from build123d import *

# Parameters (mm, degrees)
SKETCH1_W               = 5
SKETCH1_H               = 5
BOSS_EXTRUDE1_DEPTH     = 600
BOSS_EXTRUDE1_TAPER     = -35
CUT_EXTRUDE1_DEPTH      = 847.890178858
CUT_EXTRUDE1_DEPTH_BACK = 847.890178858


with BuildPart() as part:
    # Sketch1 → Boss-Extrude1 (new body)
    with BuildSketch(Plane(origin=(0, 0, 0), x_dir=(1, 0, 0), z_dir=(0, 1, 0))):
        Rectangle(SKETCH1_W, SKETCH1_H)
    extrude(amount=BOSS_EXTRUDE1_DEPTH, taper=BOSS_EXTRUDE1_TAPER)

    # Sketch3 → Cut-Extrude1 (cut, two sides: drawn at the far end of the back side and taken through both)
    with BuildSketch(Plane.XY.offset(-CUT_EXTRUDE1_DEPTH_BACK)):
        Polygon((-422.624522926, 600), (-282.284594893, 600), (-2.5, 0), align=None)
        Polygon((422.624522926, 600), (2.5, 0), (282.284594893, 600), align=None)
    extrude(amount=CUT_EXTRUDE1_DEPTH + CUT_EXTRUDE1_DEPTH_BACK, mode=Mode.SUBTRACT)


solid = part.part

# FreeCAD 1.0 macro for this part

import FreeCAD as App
import Part
import Sketcher
Q = App.Units.Quantity


def add_polygon(sketch, points):
    """Adds a closed chain of lines whose ends are joined by coincident constraints."""
    first, n = sketch.GeometryCount, len(points)
    for a, b in zip(points, points[1:] + points[:1]):
        sketch.addGeometry(Part.LineSegment(App.Vector(*a, 0), App.Vector(*b, 0)), False)
    for i in range(n):
        sketch.addConstraint(Sketcher.Constraint("Coincident", first + i, 2, first + (i + 1) % n, 1))

doc = App.newDocument("Part")
params = doc.addObject("Spreadsheet::Sheet", "Params")
for row, (alias, value) in enumerate([
    ("sketch1_width", "5 mm"),
    ("pad1_length", "600 mm"),
    ("pad1_taper", "35 deg"),
], start=1):
    params.set(f"A{row}", alias)
    params.set(f"B{row}", "=" + value)
    params.setAlias(f"B{row}", alias)

body = doc.addObject("PartDesign::Body", "Body")

# Sketch on XZ plane
sketch1 = body.newObject("Sketcher::SketchObject", "Sketch")
sketch1.AttachmentSupport = (doc.getObject("XZ_Plane"), [""])
sketch1.MapMode = "FlatFace"
add_polygon(sketch1, [(-2, -2), (-2, 2), (2, 2), (2, -2)])  # lines 0-3
sketch1.addConstraint(Sketcher.Constraint("Vertical", 0))
sketch1.addConstraint(Sketcher.Constraint("Horizontal", 1))
sketch1.addConstraint(Sketcher.Constraint("Vertical", 2))
sketch1.addConstraint(Sketcher.Constraint("Horizontal", 3))
sketch1.addConstraint(Sketcher.Constraint("Symmetric", 0, 2, 2, 2, -1, 1))
sketch1.addConstraint(Sketcher.Constraint("Equal", 3, 0))
sketch1.addConstraint(Sketcher.Constraint("DistanceX", 1, 1, 1, 2, 5.0))
sketch1.setExpression("Constraints[10]", "Params.sketch1_width")
pad1 = body.newObject("PartDesign::Pad", "Pad")
pad1.Profile = sketch1
pad1.setExpression("Length", "Params.pad1_length")
pad1.Reversed = True
pad1.setExpression("TaperAngle", "Params.pad1_taper")

# Sketch on XY plane
sketch2 = body.newObject("Sketcher::SketchObject", "Sketch001")
sketch2.AttachmentSupport = (doc.getObject("XY_Plane"), [""])
sketch2.MapMode = "FlatFace"
add_polygon(sketch2, [(-282, 600), (-423, 600), (-2, 0)])  # lines 0-2
add_polygon(sketch2, [(2, 0), (423, 600), (282, 600)])  # lines 3-5
sketch2.addConstraint(Sketcher.Constraint("Horizontal", 0))
sketch2.addConstraint(Sketcher.Constraint("Horizontal", 4))
sketch2.addConstraint(Sketcher.Constraint("Symmetric", 1, 2, 5, 2, -1, 1))
sketch2.addConstraint(Sketcher.Constraint("Symmetric", 0, 2, 3, 2, -2))
sketch2.addConstraint(Sketcher.Constraint("PointOnObject", 1, 2, -1))
sketch2.addConstraint(Sketcher.Constraint("Equal", 0, 4))
sketch2.addConstraint(Sketcher.Constraint("Angle", 1, Q("-55 deg")))
sketch2.addConstraint(Sketcher.Constraint("Angle", 2, Q("115 deg")))
sketch2.addConstraint(Sketcher.Constraint("DistanceY", -1, 1, 0, 2, 600.0))
sketch2.addConstraint(Sketcher.Constraint("DistanceX", 1, 2, 5, 2, 5.0))
pocket1 = body.newObject("PartDesign::Pocket", "Pocket")
pocket1.Profile = sketch2
pocket1.Type = "ThroughAll"
pocket1.Midplane = True

doc.recompute()
